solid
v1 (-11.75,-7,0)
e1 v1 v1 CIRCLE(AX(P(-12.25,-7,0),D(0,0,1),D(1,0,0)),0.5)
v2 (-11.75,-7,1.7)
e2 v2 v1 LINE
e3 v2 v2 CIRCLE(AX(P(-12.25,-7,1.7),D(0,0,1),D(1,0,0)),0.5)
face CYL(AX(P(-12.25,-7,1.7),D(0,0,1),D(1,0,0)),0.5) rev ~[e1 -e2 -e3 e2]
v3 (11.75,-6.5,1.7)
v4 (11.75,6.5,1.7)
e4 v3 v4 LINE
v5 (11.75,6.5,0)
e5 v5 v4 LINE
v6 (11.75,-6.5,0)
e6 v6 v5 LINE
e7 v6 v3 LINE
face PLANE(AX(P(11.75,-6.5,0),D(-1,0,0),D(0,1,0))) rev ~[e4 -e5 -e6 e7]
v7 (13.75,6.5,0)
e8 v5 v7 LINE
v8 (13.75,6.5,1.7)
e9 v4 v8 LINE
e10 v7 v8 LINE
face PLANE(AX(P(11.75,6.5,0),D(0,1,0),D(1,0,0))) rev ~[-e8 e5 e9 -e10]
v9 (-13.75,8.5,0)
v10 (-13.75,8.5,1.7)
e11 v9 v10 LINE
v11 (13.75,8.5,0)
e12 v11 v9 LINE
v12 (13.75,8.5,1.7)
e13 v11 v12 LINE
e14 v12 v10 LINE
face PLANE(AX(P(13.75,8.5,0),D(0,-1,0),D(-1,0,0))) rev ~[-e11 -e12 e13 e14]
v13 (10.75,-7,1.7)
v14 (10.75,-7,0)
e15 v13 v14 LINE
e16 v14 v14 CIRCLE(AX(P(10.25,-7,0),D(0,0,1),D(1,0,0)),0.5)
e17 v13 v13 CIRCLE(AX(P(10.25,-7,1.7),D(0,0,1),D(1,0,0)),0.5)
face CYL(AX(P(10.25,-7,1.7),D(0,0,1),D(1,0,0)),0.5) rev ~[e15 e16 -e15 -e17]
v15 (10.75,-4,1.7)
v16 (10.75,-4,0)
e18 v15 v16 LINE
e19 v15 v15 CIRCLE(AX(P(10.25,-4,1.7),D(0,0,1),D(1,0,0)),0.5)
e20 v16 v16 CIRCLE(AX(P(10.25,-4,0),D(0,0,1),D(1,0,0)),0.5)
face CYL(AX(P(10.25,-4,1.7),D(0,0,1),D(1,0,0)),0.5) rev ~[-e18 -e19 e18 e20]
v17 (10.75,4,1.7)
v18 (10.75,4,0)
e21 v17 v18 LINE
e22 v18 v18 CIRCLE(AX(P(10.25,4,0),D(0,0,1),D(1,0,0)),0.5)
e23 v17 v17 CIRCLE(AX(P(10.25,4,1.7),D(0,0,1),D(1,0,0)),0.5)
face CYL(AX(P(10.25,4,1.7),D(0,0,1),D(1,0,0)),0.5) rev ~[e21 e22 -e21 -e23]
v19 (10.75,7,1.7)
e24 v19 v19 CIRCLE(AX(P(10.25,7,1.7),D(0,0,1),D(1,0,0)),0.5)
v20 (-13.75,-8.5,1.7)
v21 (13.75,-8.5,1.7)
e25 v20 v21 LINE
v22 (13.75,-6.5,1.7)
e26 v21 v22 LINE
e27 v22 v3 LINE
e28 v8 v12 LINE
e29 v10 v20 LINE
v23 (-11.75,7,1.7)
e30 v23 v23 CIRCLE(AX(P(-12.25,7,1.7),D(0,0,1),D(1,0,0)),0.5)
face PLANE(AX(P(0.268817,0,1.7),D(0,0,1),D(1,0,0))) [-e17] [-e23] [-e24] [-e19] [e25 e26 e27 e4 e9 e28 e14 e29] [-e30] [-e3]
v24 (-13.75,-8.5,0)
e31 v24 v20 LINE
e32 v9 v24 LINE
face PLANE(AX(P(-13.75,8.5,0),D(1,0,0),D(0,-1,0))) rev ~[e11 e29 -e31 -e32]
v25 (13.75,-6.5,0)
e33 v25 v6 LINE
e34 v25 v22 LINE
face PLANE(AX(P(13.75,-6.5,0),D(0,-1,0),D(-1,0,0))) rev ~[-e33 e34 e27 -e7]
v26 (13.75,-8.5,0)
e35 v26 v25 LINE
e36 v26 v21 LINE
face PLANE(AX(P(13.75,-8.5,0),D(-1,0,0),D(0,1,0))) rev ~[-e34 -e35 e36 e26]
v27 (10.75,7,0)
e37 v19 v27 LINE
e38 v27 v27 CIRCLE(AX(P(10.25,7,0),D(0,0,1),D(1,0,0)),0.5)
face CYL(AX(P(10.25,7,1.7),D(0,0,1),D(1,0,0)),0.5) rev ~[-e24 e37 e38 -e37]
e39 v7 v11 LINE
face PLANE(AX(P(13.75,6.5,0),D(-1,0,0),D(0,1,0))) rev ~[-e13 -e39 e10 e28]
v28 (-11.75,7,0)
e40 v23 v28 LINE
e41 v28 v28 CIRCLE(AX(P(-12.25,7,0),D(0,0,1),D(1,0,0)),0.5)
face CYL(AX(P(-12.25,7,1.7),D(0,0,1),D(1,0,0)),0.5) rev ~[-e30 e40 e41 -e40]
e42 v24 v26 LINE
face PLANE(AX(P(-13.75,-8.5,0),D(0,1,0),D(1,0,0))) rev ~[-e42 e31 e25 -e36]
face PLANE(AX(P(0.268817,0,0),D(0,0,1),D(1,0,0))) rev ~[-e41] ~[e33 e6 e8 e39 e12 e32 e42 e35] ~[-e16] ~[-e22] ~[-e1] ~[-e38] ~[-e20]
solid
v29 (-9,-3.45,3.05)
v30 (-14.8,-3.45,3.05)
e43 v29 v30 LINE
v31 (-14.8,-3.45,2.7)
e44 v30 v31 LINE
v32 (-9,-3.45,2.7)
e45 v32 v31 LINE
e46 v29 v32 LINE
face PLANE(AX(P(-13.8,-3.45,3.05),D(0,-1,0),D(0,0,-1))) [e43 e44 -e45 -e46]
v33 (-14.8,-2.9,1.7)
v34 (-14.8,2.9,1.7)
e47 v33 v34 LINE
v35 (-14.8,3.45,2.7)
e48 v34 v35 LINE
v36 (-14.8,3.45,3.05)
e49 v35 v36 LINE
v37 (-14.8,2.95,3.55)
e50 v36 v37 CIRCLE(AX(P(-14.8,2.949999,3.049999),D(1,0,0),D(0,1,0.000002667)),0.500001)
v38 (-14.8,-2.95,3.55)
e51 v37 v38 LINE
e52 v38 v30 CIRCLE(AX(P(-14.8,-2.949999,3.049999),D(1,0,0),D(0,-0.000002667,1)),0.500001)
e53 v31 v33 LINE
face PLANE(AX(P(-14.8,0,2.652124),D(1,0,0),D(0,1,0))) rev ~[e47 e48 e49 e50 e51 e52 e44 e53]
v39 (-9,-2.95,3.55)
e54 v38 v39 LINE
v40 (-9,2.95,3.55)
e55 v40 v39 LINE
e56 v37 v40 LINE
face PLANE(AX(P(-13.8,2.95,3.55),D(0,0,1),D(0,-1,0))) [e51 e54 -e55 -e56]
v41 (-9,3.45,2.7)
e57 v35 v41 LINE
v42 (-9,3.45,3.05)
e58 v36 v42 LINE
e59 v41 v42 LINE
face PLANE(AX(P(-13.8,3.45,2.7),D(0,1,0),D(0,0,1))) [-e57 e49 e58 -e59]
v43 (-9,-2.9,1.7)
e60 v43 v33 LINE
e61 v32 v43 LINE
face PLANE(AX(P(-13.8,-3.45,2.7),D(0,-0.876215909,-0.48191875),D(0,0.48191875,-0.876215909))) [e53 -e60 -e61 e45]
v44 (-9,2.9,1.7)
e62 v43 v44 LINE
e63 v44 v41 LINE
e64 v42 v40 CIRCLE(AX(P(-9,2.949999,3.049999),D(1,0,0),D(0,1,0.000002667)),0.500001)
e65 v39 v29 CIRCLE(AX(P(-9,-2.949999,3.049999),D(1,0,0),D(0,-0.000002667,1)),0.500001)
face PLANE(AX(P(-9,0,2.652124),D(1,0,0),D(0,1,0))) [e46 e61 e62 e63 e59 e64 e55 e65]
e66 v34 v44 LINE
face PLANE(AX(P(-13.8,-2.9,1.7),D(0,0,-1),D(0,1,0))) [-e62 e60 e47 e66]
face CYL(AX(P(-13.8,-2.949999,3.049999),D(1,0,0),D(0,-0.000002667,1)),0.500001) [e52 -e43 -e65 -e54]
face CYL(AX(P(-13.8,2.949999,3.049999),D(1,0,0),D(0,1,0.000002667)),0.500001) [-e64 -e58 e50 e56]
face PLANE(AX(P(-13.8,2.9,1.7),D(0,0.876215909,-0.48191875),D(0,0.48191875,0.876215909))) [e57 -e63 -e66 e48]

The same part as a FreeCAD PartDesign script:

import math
import FreeCAD as App
import Part
import Sketcher

V = App.Vector
Q = App.Units.Quantity


def add_polygon(sketch, points):
    """Adds a closed chain of lines whose ends are joined by coincident constraints."""
    first, n = sketch.GeometryCount, len(points)
    for a, b in zip(points, points[1:] + points[:1]):
        sketch.addGeometry(Part.LineSegment(App.Vector(*a, 0), App.Vector(*b, 0)), False)
    for i in range(n):
        sketch.addConstraint(Sketcher.Constraint("Coincident", first + i, 2, first + (i + 1) % n, 1))

doc = App.newDocument("Part")
body = doc.addObject("PartDesign::Body", "Body")

# Sketch on XY plane
sketch1 = body.newObject("Sketcher::SketchObject", "Sketch")
sketch1.AttachmentSupport = (doc.getObject("XY_Plane"), [""])
sketch1.MapMode = "FlatFace"
add_polygon(sketch1, [(13.8, 6.5), (13.8, 8.5), (-13.8, 8.5), (-13.8, -8.5), (13.8, -8.5), (13.8, -6.5), (11.8, -6.5), (11.8, 6.5)])  # lines 0-7
sketch1.addConstraint([
    Sketcher.Constraint("Vertical", 0),
    Sketcher.Constraint("Horizontal", 1),
    Sketcher.Constraint("Vertical", 2),
    Sketcher.Constraint("Horizontal", 3),
    Sketcher.Constraint("Vertical", 4),
    Sketcher.Constraint("Horizontal", 5),
    Sketcher.Constraint("Vertical", 6),
    Sketcher.Constraint("Horizontal", 7),
    Sketcher.Constraint("Symmetric", 0, 2, 2, 2, -1, 1),
    Sketcher.Constraint("Symmetric", 4, 2, 7, 2, -1),
    Sketcher.Constraint("Equal", 7, 0),
    Sketcher.Constraint("DistanceX", 5, 2, 5, 1, Q("2 mm")),
    Sketcher.Constraint("DistanceY", 2, 2, 2, 1, Q("17 mm")),
    Sketcher.Constraint("DistanceX", 1, 2, 1, 1, Q("27.5 mm")),
])
pad1 = body.newObject("PartDesign::Pad", "Pad")
pad1.Profile = sketch1
pad1.Length = 1.7

# Sketch on XY plane
sketch2 = body.newObject("Sketcher::SketchObject", "Sketch001")
sketch2.AttachmentSupport = (doc.getObject("XY_Plane"), [""])
sketch2.MapMode = "FlatFace"
sketch2.AttachmentOffset = App.Placement(V(0, 0, 1.7), App.Rotation())
sketch2.addGeometry([
    Part.Circle(V(10.2, 7, 0), V(0, 0, 1), 0.5),  # 0
    Part.Circle(V(10.2, 4, 0), V(0, 0, 1), 0.5),  # 1
    Part.Circle(V(10.2, -4, 0), V(0, 0, 1), 0.5),  # 2
    Part.Circle(V(10.2, -7, 0), V(0, 0, 1), 0.5),  # 3
    Part.Circle(V(-12.2, 7, 0), V(0, 0, 1), 0.5),  # 4
    Part.Circle(V(-12.2, -7, 0), V(0, 0, 1), 0.5),  # 5
], False)
sketch2.addConstraint([
    Sketcher.Constraint("Equal", 0, 1),
    Sketcher.Constraint("Equal", 1, 2),
    Sketcher.Constraint("Equal", 2, 3),
    Sketcher.Constraint("Equal", 3, 4),
    Sketcher.Constraint("Equal", 4, 5),
    Sketcher.Constraint("Symmetric", 1, 3, 2, 3, -1),
    Sketcher.Constraint("Symmetric", 0, 3, 3, 3, -1),
    Sketcher.Constraint("Symmetric", 4, 3, 5, 3, -1),
    Sketcher.Constraint("Horizontal", 0, 3, 4, 3),
    Sketcher.Constraint("Vertical", 0, 3, 1, 3),
    Sketcher.Constraint("Diameter", 0, Q("1 mm")),
    Sketcher.Constraint("DistanceY", -1, 1, 0, 3, Q("7 mm")),
    Sketcher.Constraint("DistanceY", -1, 1, 1, 3, Q("4 mm")),
    Sketcher.Constraint("DistanceX", 4, 3, 0, 3, Q("22.5 mm")),
    Sketcher.Constraint("DistanceX", -1, 1, 0, 3, Q("10.25 mm")),
])
pocket1 = body.newObject("PartDesign::Pocket", "Pocket")
pocket1.Profile = sketch2
pocket1.Type = "ThroughAll"
body2 = doc.addObject("PartDesign::Body", "Body001")

# Sketch on YZ plane
sketch3 = body2.newObject("Sketcher::SketchObject", "Sketch002")
sketch3.AttachmentSupport = (doc.getObject("YZ_Plane001"), [""])
sketch3.MapMode = "FlatFace"
sketch3.AttachmentOffset = App.Placement(V(0, 0, -13.8), App.Rotation())
sketch3.addGeometry([
    Part.LineSegment(V(-2.9, 1.7, 0), V(2.9, 1.7, 0)),  # 0
    Part.LineSegment(V(2.9, 1.7, 0), V(3.45, 2.7, 0)),  # 1
    Part.LineSegment(V(3.45, 2.7, 0), V(3.45, 3.05, 0)),  # 2
    Part.ArcOfCircle(Part.Circle(V(2.95, 3.05, 0), V(0, 0, 1), 0.5), math.radians(0), math.radians(90)),  # 3
    Part.LineSegment(V(2.95, 3.55, 0), V(-2.95, 3.55, 0)),  # 4
    Part.ArcOfCircle(Part.Circle(V(-2.95, 3.05, 0), V(0, 0, 1), 0.5), math.radians(90), math.radians(180)),  # 5
    Part.LineSegment(V(-3.45, 3.05, 0), V(-3.45, 2.7, 0)),  # 6
    Part.LineSegment(V(-3.45, 2.7, 0), V(-2.9, 1.7, 0)),  # 7
], False)
sketch3.addConstraint([
    Sketcher.Constraint("Coincident", 0, 2, 1, 1),
    Sketcher.Constraint("Coincident", 1, 2, 2, 1),
    Sketcher.Constraint("Coincident", 2, 2, 3, 1),
    Sketcher.Constraint("Coincident", 3, 2, 4, 1),
    Sketcher.Constraint("Coincident", 4, 2, 5, 1),
    Sketcher.Constraint("Coincident", 5, 2, 6, 1),
    Sketcher.Constraint("Coincident", 6, 2, 7, 1),
    Sketcher.Constraint("Coincident", 7, 2, 0, 1),
    Sketcher.Constraint("Horizontal", 0),
    Sketcher.Constraint("Vertical", 2),
    Sketcher.Constraint("Horizontal", 4),
    Sketcher.Constraint("Vertical", 6),
    Sketcher.Constraint("Equal", 3, 5),
    Sketcher.Constraint("Symmetric", 2, 2, 5, 2, -2),
    Sketcher.Constraint("Horizontal", 5, 3, 2, 2),
    Sketcher.Constraint("Horizontal", 1, 2, 6, 2),
    Sketcher.Constraint("Vertical", 5, 3, 4, 2),
    Sketcher.Constraint("Equal", 1, 7),
    Sketcher.Constraint("Radius", 3, Q("0.500001 mm")),
    Sketcher.Constraint("DistanceX", 0, 1, 0, 2, Q("5.8 mm")),
    Sketcher.Constraint("DistanceX", 4, 2, 4, 1, Q("5.9 mm")),
    Sketcher.Constraint("DistanceY", 0, 2, 1, 2, Q("1 mm")),
    Sketcher.Constraint("DistanceY", 2, 1, 2, 2, Q("0.35 mm")),
    Sketcher.Constraint("DistanceY", -1, 1, 0, 2, Q("1.7 mm")),
    Sketcher.Constraint("DistanceX", 5, 3, 1, 2, Q("6.399999 mm")),
])
pad2 = body2.newObject("PartDesign::Pad", "Pad001")
pad2.Profile = sketch3
pad2.Type = "TwoLengths"
pad2.Length = 4.8
pad2.Length2 = 1

doc.recompute()
